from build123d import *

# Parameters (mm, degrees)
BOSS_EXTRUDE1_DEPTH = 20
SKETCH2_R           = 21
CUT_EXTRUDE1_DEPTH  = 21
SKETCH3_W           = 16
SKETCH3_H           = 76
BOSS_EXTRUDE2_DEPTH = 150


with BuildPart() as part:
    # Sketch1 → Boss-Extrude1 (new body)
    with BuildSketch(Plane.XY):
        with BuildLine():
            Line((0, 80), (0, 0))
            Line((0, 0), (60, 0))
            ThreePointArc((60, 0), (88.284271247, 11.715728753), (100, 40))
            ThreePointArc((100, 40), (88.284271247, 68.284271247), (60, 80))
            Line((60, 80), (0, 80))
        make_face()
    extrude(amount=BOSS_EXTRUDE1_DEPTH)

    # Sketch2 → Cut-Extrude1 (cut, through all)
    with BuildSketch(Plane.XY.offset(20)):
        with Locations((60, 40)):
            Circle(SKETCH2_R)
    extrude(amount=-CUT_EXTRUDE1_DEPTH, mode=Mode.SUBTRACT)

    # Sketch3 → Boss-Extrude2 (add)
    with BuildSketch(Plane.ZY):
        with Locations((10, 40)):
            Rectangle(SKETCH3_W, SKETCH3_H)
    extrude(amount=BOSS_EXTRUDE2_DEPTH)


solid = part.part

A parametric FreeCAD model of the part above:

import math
import FreeCAD as App
import Part
import Sketcher
Q = App.Units.Quantity

doc = App.newDocument("Part")
params = doc.addObject("Spreadsheet::Sheet", "Params")
for row, (alias, value) in enumerate([
    ("sketch1_radius", "40 mm"),
    ("sketch1_width", "60 mm"),
    ("pad1_length", "20 mm"),
    ("sketch2_diameter", "42 mm"),
    ("sketch3_width", "76 mm"),
    ("sketch3_height", "16 mm"),
    ("pad2_length", "150 mm"),
], start=1):
    params.set(f"A{row}", alias)
    params.set(f"B{row}", "=" + value)
    params.setAlias(f"B{row}", alias)

body = doc.addObject("PartDesign::Body", "Body")

sketch1 = body.newObject("Sketcher::SketchObject", "Sketch")
sketch1.AttachmentSupport = (doc.getObject("XY_Plane"), [""])
sketch1.MapMode = "FlatFace"
sketch1.addGeometry([
    Part.LineSegment(App.Vector(0, 80, 0), App.Vector(0, 0, 0)),
    Part.LineSegment(App.Vector(0, 0, 0), App.Vector(60, 0, 0)),
    Part.ArcOfCircle(Part.Circle(App.Vector(60, 40, 0), App.Vector(0, 0, 1), 40), math.radians(-90), math.radians(0)),
    Part.ArcOfCircle(Part.Circle(App.Vector(60, 40, 0), App.Vector(0, 0, 1), 40), math.radians(0), math.radians(90)),
    Part.LineSegment(App.Vector(60, 80, 0), App.Vector(0, 80, 0)),
], False)
sketch1.addConstraint([
    Sketcher.Constraint("Coincident", 0, 2, 1, 1),
    Sketcher.Constraint("Tangent", 1, 2, 2, 1),
    Sketcher.Constraint("Tangent", 2, 2, 3, 1),
    Sketcher.Constraint("Tangent", 3, 2, 4, 1),
    Sketcher.Constraint("Coincident", 4, 2, 0, 1),
    Sketcher.Constraint("Vertical", 0),
    Sketcher.Constraint("Horizontal", 1),
    Sketcher.Constraint("Horizontal", 4),
    Sketcher.Constraint("Coincident", 0, 2, -1, 1),
    Sketcher.Constraint("Equal", 2, 3),
    Sketcher.Constraint("Horizontal", 3, 3, 2, 2),
    Sketcher.Constraint("Radius", 2, Q("40 mm")),
    Sketcher.Constraint("DistanceX", 1, 1, 1, 2, Q("60 mm")),
])
sketch1.setExpression("Constraints[11]", "Params.sketch1_radius")
sketch1.setExpression("Constraints[12]", "Params.sketch1_width")
pad1 = body.newObject("PartDesign::Pad", "Pad")
pad1.Profile = sketch1
pad1.setExpression("Length", "Params.pad1_length")

sketch2 = body.newObject("Sketcher::SketchObject", "Sketch001")
sketch2.AttachmentSupport = (doc.getObject("XY_Plane"), [""])
sketch2.MapMode = "FlatFace"
sketch2.AttachmentOffset = App.Placement(App.Vector(0, 0, 20), App.Rotation())
sketch2.addGeometry(Part.Circle(App.Vector(60, 40, 0), App.Vector(0, 0, 1), 21), False)
sketch2.addConstraint([
    Sketcher.Constraint("Diameter", 0, Q("42 mm")),
    Sketcher.Constraint("DistanceX", -1, 1, 0, 3, Q("60 mm")),
    Sketcher.Constraint("DistanceY", -1, 1, 0, 3, Q("40 mm")),
])
sketch2.setExpression("Constraints[0]", "Params.sketch2_diameter")
pocket1 = body.newObject("PartDesign::Pocket", "Pocket")
pocket1.Profile = sketch2
pocket1.Type = "ThroughAll"

sketch3 = body.newObject("Sketcher::SketchObject", "Sketch002")
sketch3.AttachmentSupport = (doc.getObject("YZ_Plane"), [""])
sketch3.MapMode = "FlatFace"
sketch3.addGeometry([
    Part.LineSegment(App.Vector(78, 2, 0), App.Vector(2, 2, 0)),
    Part.LineSegment(App.Vector(2, 2, 0), App.Vector(2, 18, 0)),
    Part.LineSegment(App.Vector(2, 18, 0), App.Vector(78, 18, 0)),
    Part.LineSegment(App.Vector(78, 18, 0), App.Vector(78, 2, 0)),
], False)
sketch3.addConstraint([
    Sketcher.Constraint("Coincident", 0, 2, 1, 1),
    Sketcher.Constraint("Coincident", 1, 2, 2, 1),
    Sketcher.Constraint("Coincident", 2, 2, 3, 1),
    Sketcher.Constraint("Coincident", 3, 2, 0, 1),
    Sketcher.Constraint("Horizontal", 0),
    Sketcher.Constraint("Vertical", 1),
    Sketcher.Constraint("Horizontal", 2),
    Sketcher.Constraint("Vertical", 3),
    Sketcher.Constraint("DistanceX", 0, 2, 0, 1, Q("76 mm")),
    Sketcher.Constraint("DistanceY", 1, 1, 1, 2, Q("16 mm")),
    Sketcher.Constraint("DistanceX", -1, 1, 0, 2, Q("2 mm")),
    Sketcher.Constraint("DistanceY", -1, 1, 0, 2, Q("2 mm")),
])
sketch3.setExpression("Constraints[8]", "Params.sketch3_width")
sketch3.setExpression("Constraints[9]", "Params.sketch3_height")
pad2 = body.newObject("PartDesign::Pad", "Pad001")
pad2.Profile = sketch3
pad2.setExpression("Length", "Params.pad2_length")
pad2.Reversed = True

doc.recompute()
